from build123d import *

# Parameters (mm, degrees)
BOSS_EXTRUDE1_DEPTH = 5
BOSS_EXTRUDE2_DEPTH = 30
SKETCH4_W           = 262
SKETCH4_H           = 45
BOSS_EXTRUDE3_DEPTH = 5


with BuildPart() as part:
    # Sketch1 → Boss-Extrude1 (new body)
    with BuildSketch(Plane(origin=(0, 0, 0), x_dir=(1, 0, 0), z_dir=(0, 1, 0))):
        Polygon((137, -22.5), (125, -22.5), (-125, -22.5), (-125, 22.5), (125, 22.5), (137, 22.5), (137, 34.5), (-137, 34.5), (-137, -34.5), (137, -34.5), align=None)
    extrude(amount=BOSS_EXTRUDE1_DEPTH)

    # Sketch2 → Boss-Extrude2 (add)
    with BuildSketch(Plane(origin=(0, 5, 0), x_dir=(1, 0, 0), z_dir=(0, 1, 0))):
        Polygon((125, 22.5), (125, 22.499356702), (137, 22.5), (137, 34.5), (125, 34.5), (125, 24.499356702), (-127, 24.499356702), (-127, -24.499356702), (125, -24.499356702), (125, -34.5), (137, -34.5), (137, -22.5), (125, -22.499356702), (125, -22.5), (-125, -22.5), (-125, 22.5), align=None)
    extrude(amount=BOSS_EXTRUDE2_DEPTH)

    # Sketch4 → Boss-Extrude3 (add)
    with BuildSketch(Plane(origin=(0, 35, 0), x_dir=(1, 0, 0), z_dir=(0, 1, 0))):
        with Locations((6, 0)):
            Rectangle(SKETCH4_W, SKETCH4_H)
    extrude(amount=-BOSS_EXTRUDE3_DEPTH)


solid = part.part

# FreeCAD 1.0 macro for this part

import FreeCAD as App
import Part
import Sketcher

V = App.Vector

doc = App.newDocument("Part")
body = doc.addObject("PartDesign::Body", "Body")

sketch1 = body.newObject("Sketcher::SketchObject", "Sketch")
sketch1.AttachmentSupport = (doc.getObject("XZ_Plane"), [""])
sketch1.MapMode = "FlatFace"
sketch1.addGeometry([
    Part.LineSegment(V(137, 22.5, 0), V(-125, 22.5, 0)),
    Part.LineSegment(V(-125, 22.5, 0), V(-125, -22.5, 0)),
    Part.LineSegment(V(-125, -22.5, 0), V(137, -22.5, 0)),
    Part.LineSegment(V(137, -22.5, 0), V(137, -34.5, 0)),
    Part.LineSegment(V(137, -34.5, 0), V(-137, -34.5, 0)),
    Part.LineSegment(V(-137, -34.5, 0), V(-137, 34.5, 0)),
    Part.LineSegment(V(-137, 34.5, 0), V(137, 34.5, 0)),
    Part.LineSegment(V(137, 34.5, 0), V(137, 22.5, 0)),
], False)
sketch1.addConstraint([
    Sketcher.Constraint("Coincident", 0, 2, 1, 1),
    Sketcher.Constraint("Coincident", 1, 2, 2, 1),
    Sketcher.Constraint("Coincident", 2, 2, 3, 1),
    Sketcher.Constraint("Coincident", 3, 2, 4, 1),
    Sketcher.Constraint("Coincident", 4, 2, 5, 1),
    Sketcher.Constraint("Coincident", 5, 2, 6, 1),
    Sketcher.Constraint("Coincident", 6, 2, 7, 1),
    Sketcher.Constraint("Coincident", 7, 2, 0, 1),
    Sketcher.Constraint("Horizontal", 0),
    Sketcher.Constraint("Vertical", 1),
    Sketcher.Constraint("Horizontal", 2),
    Sketcher.Constraint("Vertical", 3),
    Sketcher.Constraint("Horizontal", 4),
    Sketcher.Constraint("Vertical", 5),
    Sketcher.Constraint("Horizontal", 6),
    Sketcher.Constraint("Vertical", 7),
    Sketcher.Constraint("Symmetric", 3, 2, 5, 2, -1, 1),
    Sketcher.Constraint("Symmetric", 2, 2, 7, 2, -1),
    Sketcher.Constraint("DistanceX", 0, 2, 0, 1, 262.0),
    Sketcher.Constraint("DistanceX", 4, 2, 4, 1, 274.0),
    Sketcher.Constraint("DistanceY", 1, 2, 1, 1, 45.0),
    Sketcher.Constraint("DistanceY", 3, 2, 3, 1, 12.0),
])
pad1 = body.newObject("PartDesign::Pad", "Pad")
pad1.Profile = sketch1
pad1.Length = 5
pad1.Reversed = True

sketch2 = body.newObject("Sketcher::SketchObject", "Sketch001")
sketch2.AttachmentSupport = (doc.getObject("XZ_Plane"), [""])
sketch2.MapMode = "FlatFace"
sketch2.AttachmentOffset = App.Placement(V(0, 0, -5), App.Rotation())
sketch2.addGeometry([
    Part.LineSegment(V(125, -22.5, 0), V(125, -22.499357, 0)),
    Part.LineSegment(V(125, -22.499357, 0), V(137, -22.5, 0)),
    Part.LineSegment(V(137, -22.5, 0), V(137, -34.5, 0)),
    Part.LineSegment(V(137, -34.5, 0), V(125, -34.5, 0)),
    Part.LineSegment(V(125, -34.5, 0), V(125, -24.499357, 0)),
    Part.LineSegment(V(125, -24.499357, 0), V(-127, -24.499357, 0)),
    Part.LineSegment(V(-127, -24.499357, 0), V(-127, 24.499357, 0)),
    Part.LineSegment(V(-127, 24.499357, 0), V(125, 24.499357, 0)),
    Part.LineSegment(V(125, 24.499357, 0), V(125, 34.5, 0)),
    Part.LineSegment(V(125, 34.5, 0), V(137, 34.5, 0)),
    Part.LineSegment(V(137, 34.5, 0), V(137, 22.5, 0)),
    Part.LineSegment(V(137, 22.5, 0), V(125, 22.499357, 0)),
    Part.LineSegment(V(125, 22.499357, 0), V(125, 22.5, 0)),
    Part.LineSegment(V(125, 22.5, 0), V(-125, 22.5, 0)),
    Part.LineSegment(V(-125, 22.5, 0), V(-125, -22.5, 0)),
    Part.LineSegment(V(-125, -22.5, 0), V(125, -22.5, 0)),
], False)
sketch2.addConstraint([
    Sketcher.Constraint("Coincident", 0, 2, 1, 1),
    Sketcher.Constraint("Coincident", 1, 2, 2, 1),
    Sketcher.Constraint("Coincident", 2, 2, 3, 1),
    Sketcher.Constraint("Coincident", 3, 2, 4, 1),
    Sketcher.Constraint("Coincident", 4, 2, 5, 1),
    Sketcher.Constraint("Coincident", 5, 2, 6, 1),
    Sketcher.Constraint("Coincident", 6, 2, 7, 1),
    Sketcher.Constraint("Coincident", 7, 2, 8, 1),
    Sketcher.Constraint("Coincident", 8, 2, 9, 1),
    Sketcher.Constraint("Coincident", 9, 2, 10, 1),
    Sketcher.Constraint("Coincident", 10, 2, 11, 1),
    Sketcher.Constraint("Coincident", 11, 2, 12, 1),
    Sketcher.Constraint("Coincident", 12, 2, 13, 1),
    Sketcher.Constraint("Coincident", 13, 2, 14, 1),
    Sketcher.Constraint("Coincident", 14, 2, 15, 1),
    Sketcher.Constraint("Coincident", 15, 2, 0, 1),
    Sketcher.Constraint("Vertical", 0),
    Sketcher.Constraint("Vertical", 2),
    Sketcher.Constraint("Horizontal", 3),
    Sketcher.Constraint("Vertical", 4),
    Sketcher.Constraint("Horizontal", 5),
    Sketcher.Constraint("Vertical", 6),
    Sketcher.Constraint("Horizontal", 7),
    Sketcher.Constraint("Vertical", 8),
    Sketcher.Constraint("Horizontal", 9),
    Sketcher.Constraint("Vertical", 10),
    Sketcher.Constraint("Vertical", 12),
    Sketcher.Constraint("Horizontal", 13),
    Sketcher.Constraint("Vertical", 14),
    Sketcher.Constraint("Horizontal", 15),
    Sketcher.Constraint("Symmetric", 12, 2, 14, 2, -1, 1),
    Sketcher.Constraint("Symmetric", 4, 2, 7, 2, -1),
    Sketcher.Constraint("Symmetric", 2, 2, 9, 2, -1),
    Sketcher.Constraint("Symmetric", 0, 2, 11, 2, -1),
    Sketcher.Constraint("Horizontal", 10, 2, 12, 2),
    Sketcher.Constraint("Horizontal", 1, 2, 14, 2),
    Sketcher.Constraint("Vertical", 0, 2, 3, 2),
    Sketcher.Constraint("Equal", 9, 2),
    Sketcher.Constraint("DistanceX", 3, 2, 3, 1, 12.0),
    Sketcher.Constraint("DistanceX", 5, 2, 5, 1, 252.0),
    Sketcher.Constraint("DistanceX", 13, 2, 13, 1, 250.0),
    Sketcher.Constraint("DistanceY", 14, 2, 14, 1, 45.0),
    Sketcher.Constraint("DistanceY", 4, 2, 0, 2, 2.0),
    Sketcher.Constraint("DistanceY", 0, 1, 0, 2, 0.000643),
])
pad2 = body.newObject("PartDesign::Pad", "Pad001")
pad2.Profile = sketch2
pad2.Length = 30
pad2.Reversed = True

sketch3 = body.newObject("Sketcher::SketchObject", "Sketch002")
sketch3.AttachmentSupport = (doc.getObject("XZ_Plane"), [""])
sketch3.MapMode = "FlatFace"
sketch3.AttachmentOffset = App.Placement(V(0, 0, -35), App.Rotation())
sketch3.addGeometry([
    Part.LineSegment(V(-125, -22.5, 0), V(-125, 22.5, 0)),
    Part.LineSegment(V(-125, 22.5, 0), V(137, 22.5, 0)),
    Part.LineSegment(V(137, 22.5, 0), V(137, -22.5, 0)),
    Part.LineSegment(V(137, -22.5, 0), V(-125, -22.5, 0)),
], False)
sketch3.addConstraint([
    Sketcher.Constraint("Coincident", 0, 2, 1, 1),
    Sketcher.Constraint("Coincident", 1, 2, 2, 1),
    Sketcher.Constraint("Coincident", 2, 2, 3, 1),
    Sketcher.Constraint("Coincident", 3, 2, 0, 1),
    Sketcher.Constraint("Vertical", 0),
    Sketcher.Constraint("Horizontal", 1),
    Sketcher.Constraint("Vertical", 2),
    Sketcher.Constraint("Horizontal", 3),
    Sketcher.Constraint("DistanceX", 1, 1, 1, 2, 262.0),
    Sketcher.Constraint("DistanceY", 0, 1, 0, 2, 45.0),
    Sketcher.Constraint("DistanceX", 0, 2, -1, 1, 125.0),
    Sketcher.Constraint("DistanceY", -1, 1, 0, 2, 22.5),
])
pad3 = body.newObject("PartDesign::Pad", "Pad002")
pad3.Profile = sketch3
pad3.Length = 5

doc.recompute()
